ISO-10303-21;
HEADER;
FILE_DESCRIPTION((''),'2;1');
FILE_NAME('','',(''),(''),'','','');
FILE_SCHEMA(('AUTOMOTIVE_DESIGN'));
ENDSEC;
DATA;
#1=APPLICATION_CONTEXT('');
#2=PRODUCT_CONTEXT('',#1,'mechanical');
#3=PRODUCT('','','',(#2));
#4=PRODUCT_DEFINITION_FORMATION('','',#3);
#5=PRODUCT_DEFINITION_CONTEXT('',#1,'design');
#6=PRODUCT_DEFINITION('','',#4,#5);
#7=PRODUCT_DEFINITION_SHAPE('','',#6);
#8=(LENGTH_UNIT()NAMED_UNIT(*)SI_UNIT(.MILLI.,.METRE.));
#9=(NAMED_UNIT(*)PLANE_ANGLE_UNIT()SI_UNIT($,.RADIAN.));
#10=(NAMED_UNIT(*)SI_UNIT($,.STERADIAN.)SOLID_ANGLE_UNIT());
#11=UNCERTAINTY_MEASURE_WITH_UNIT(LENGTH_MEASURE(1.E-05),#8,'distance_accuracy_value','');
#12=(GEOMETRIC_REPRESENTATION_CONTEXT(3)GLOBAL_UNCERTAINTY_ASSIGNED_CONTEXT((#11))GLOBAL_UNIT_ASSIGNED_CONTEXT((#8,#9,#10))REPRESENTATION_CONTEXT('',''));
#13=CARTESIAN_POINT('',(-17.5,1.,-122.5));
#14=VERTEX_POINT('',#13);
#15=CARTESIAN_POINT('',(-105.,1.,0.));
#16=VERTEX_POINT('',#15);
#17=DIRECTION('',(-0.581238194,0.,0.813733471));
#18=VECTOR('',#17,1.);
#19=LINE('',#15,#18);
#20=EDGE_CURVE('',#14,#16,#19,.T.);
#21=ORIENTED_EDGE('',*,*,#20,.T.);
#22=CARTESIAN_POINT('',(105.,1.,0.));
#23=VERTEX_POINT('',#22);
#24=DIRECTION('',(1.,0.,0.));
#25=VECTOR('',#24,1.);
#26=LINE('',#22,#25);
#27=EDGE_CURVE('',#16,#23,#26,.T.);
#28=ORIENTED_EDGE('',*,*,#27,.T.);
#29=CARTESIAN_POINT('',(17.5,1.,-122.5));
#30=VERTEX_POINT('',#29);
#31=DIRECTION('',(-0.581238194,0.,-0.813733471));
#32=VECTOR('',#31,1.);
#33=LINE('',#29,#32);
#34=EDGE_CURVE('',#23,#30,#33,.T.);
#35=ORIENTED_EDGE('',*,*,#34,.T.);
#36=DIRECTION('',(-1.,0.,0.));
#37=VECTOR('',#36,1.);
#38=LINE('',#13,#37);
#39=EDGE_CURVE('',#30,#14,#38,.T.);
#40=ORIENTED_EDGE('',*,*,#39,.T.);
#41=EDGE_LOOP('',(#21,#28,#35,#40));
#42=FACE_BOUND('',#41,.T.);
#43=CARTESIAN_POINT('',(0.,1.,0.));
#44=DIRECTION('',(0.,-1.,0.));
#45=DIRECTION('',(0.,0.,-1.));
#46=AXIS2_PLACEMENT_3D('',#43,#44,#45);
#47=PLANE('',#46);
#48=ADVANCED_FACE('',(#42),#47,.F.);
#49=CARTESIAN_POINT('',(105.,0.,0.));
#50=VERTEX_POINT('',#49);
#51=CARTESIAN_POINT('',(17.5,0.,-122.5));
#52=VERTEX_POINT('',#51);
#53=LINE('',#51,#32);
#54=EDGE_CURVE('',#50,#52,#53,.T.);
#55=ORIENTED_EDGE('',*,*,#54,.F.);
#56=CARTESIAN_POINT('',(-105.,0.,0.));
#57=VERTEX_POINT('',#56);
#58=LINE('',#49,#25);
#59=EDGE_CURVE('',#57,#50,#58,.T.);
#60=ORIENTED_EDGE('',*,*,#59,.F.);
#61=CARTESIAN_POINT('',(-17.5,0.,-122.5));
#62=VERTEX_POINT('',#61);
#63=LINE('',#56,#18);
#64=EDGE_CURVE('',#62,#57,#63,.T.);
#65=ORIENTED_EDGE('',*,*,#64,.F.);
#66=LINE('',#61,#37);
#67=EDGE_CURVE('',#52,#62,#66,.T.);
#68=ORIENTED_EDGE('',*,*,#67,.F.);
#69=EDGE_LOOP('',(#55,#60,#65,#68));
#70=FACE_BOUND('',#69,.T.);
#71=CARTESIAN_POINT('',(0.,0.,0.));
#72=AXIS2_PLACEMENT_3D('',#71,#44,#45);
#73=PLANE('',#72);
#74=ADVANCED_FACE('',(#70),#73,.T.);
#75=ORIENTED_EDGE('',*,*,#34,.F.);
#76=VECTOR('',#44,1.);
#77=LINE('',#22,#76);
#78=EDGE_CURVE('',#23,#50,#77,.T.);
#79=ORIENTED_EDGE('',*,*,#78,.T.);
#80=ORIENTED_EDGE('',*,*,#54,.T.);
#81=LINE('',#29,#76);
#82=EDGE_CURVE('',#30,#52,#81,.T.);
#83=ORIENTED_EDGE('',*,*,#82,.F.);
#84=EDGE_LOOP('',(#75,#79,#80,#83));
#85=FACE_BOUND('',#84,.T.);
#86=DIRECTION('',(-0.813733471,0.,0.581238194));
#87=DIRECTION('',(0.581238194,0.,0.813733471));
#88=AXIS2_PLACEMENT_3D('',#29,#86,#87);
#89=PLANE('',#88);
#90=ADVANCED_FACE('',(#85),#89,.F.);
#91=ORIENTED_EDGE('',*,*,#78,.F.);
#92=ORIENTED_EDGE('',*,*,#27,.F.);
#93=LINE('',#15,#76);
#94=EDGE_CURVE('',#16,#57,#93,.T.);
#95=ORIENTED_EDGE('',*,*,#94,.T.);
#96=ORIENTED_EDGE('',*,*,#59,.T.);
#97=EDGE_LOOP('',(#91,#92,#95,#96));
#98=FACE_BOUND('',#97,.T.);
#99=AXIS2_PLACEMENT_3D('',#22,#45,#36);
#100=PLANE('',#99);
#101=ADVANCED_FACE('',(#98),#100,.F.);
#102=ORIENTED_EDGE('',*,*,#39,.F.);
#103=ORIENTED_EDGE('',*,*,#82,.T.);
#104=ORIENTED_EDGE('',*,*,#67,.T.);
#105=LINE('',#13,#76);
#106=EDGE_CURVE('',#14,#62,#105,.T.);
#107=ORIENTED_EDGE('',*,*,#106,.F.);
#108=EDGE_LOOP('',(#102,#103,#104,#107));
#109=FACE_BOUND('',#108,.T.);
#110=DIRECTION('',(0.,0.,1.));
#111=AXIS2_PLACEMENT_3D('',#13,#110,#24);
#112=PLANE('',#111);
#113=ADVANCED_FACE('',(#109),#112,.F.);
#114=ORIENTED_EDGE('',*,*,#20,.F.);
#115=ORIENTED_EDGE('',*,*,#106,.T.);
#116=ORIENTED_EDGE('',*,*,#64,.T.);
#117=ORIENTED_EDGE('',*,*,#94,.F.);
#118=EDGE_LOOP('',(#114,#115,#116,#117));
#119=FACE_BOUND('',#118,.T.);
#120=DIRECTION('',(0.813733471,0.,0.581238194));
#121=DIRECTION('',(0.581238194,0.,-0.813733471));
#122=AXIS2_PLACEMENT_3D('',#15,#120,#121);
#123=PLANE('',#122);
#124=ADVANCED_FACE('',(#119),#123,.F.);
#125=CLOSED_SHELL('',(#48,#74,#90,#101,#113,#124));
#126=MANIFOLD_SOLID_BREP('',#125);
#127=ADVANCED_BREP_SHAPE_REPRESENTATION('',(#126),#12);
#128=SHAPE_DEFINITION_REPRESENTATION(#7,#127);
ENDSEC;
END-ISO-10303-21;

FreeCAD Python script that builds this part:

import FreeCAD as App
import Part
import Sketcher

V = App.Vector


def add_polygon(sketch, points):
    """Adds a closed chain of lines whose ends are joined by coincident constraints."""
    first, n = sketch.GeometryCount, len(points)
    for a, b in zip(points, points[1:] + points[:1]):
        sketch.addGeometry(Part.LineSegment(App.Vector(*a, 0), App.Vector(*b, 0)), False)
    for i in range(n):
        sketch.addConstraint(Sketcher.Constraint("Coincident", first + i, 2, first + (i + 1) % n, 1))

doc = App.newDocument("Part")
body = doc.addObject("PartDesign::Body", "Body")

# Sketch on XZ plane
sketch1 = body.newObject("Sketcher::SketchObject", "Sketch")
sketch1.AttachmentSupport = (doc.getObject("XZ_Plane"), [""])
sketch1.MapMode = "FlatFace"
add_polygon(sketch1, [(18, -122), (-18, -122), (-105, 0), (105, 0)])  # lines 0-3
sketch1.addConstraint(Sketcher.Constraint("Horizontal", 0))
sketch1.addConstraint(Sketcher.Constraint("Horizontal", 2))
sketch1.addConstraint(Sketcher.Constraint("Symmetric", 1, 2, 2, 2, -1, 1))
sketch1.addConstraint(Sketcher.Constraint("Equal", 1, 3))
sketch1.addConstraint(Sketcher.Constraint("DistanceX", 0, 2, 0, 1, 35.0))
sketch1.addConstraint(Sketcher.Constraint("DistanceX", 2, 1, 2, 2, 210.0))
sketch1.addConstraint(Sketcher.Constraint("DistanceY", 0, 2, -1, 1, 122.5))
pad1 = body.newObject("PartDesign::Pad", "Pad")
pad1.Profile = sketch1
pad1.Length = 1
pad1.Reversed = True

doc.recompute()
